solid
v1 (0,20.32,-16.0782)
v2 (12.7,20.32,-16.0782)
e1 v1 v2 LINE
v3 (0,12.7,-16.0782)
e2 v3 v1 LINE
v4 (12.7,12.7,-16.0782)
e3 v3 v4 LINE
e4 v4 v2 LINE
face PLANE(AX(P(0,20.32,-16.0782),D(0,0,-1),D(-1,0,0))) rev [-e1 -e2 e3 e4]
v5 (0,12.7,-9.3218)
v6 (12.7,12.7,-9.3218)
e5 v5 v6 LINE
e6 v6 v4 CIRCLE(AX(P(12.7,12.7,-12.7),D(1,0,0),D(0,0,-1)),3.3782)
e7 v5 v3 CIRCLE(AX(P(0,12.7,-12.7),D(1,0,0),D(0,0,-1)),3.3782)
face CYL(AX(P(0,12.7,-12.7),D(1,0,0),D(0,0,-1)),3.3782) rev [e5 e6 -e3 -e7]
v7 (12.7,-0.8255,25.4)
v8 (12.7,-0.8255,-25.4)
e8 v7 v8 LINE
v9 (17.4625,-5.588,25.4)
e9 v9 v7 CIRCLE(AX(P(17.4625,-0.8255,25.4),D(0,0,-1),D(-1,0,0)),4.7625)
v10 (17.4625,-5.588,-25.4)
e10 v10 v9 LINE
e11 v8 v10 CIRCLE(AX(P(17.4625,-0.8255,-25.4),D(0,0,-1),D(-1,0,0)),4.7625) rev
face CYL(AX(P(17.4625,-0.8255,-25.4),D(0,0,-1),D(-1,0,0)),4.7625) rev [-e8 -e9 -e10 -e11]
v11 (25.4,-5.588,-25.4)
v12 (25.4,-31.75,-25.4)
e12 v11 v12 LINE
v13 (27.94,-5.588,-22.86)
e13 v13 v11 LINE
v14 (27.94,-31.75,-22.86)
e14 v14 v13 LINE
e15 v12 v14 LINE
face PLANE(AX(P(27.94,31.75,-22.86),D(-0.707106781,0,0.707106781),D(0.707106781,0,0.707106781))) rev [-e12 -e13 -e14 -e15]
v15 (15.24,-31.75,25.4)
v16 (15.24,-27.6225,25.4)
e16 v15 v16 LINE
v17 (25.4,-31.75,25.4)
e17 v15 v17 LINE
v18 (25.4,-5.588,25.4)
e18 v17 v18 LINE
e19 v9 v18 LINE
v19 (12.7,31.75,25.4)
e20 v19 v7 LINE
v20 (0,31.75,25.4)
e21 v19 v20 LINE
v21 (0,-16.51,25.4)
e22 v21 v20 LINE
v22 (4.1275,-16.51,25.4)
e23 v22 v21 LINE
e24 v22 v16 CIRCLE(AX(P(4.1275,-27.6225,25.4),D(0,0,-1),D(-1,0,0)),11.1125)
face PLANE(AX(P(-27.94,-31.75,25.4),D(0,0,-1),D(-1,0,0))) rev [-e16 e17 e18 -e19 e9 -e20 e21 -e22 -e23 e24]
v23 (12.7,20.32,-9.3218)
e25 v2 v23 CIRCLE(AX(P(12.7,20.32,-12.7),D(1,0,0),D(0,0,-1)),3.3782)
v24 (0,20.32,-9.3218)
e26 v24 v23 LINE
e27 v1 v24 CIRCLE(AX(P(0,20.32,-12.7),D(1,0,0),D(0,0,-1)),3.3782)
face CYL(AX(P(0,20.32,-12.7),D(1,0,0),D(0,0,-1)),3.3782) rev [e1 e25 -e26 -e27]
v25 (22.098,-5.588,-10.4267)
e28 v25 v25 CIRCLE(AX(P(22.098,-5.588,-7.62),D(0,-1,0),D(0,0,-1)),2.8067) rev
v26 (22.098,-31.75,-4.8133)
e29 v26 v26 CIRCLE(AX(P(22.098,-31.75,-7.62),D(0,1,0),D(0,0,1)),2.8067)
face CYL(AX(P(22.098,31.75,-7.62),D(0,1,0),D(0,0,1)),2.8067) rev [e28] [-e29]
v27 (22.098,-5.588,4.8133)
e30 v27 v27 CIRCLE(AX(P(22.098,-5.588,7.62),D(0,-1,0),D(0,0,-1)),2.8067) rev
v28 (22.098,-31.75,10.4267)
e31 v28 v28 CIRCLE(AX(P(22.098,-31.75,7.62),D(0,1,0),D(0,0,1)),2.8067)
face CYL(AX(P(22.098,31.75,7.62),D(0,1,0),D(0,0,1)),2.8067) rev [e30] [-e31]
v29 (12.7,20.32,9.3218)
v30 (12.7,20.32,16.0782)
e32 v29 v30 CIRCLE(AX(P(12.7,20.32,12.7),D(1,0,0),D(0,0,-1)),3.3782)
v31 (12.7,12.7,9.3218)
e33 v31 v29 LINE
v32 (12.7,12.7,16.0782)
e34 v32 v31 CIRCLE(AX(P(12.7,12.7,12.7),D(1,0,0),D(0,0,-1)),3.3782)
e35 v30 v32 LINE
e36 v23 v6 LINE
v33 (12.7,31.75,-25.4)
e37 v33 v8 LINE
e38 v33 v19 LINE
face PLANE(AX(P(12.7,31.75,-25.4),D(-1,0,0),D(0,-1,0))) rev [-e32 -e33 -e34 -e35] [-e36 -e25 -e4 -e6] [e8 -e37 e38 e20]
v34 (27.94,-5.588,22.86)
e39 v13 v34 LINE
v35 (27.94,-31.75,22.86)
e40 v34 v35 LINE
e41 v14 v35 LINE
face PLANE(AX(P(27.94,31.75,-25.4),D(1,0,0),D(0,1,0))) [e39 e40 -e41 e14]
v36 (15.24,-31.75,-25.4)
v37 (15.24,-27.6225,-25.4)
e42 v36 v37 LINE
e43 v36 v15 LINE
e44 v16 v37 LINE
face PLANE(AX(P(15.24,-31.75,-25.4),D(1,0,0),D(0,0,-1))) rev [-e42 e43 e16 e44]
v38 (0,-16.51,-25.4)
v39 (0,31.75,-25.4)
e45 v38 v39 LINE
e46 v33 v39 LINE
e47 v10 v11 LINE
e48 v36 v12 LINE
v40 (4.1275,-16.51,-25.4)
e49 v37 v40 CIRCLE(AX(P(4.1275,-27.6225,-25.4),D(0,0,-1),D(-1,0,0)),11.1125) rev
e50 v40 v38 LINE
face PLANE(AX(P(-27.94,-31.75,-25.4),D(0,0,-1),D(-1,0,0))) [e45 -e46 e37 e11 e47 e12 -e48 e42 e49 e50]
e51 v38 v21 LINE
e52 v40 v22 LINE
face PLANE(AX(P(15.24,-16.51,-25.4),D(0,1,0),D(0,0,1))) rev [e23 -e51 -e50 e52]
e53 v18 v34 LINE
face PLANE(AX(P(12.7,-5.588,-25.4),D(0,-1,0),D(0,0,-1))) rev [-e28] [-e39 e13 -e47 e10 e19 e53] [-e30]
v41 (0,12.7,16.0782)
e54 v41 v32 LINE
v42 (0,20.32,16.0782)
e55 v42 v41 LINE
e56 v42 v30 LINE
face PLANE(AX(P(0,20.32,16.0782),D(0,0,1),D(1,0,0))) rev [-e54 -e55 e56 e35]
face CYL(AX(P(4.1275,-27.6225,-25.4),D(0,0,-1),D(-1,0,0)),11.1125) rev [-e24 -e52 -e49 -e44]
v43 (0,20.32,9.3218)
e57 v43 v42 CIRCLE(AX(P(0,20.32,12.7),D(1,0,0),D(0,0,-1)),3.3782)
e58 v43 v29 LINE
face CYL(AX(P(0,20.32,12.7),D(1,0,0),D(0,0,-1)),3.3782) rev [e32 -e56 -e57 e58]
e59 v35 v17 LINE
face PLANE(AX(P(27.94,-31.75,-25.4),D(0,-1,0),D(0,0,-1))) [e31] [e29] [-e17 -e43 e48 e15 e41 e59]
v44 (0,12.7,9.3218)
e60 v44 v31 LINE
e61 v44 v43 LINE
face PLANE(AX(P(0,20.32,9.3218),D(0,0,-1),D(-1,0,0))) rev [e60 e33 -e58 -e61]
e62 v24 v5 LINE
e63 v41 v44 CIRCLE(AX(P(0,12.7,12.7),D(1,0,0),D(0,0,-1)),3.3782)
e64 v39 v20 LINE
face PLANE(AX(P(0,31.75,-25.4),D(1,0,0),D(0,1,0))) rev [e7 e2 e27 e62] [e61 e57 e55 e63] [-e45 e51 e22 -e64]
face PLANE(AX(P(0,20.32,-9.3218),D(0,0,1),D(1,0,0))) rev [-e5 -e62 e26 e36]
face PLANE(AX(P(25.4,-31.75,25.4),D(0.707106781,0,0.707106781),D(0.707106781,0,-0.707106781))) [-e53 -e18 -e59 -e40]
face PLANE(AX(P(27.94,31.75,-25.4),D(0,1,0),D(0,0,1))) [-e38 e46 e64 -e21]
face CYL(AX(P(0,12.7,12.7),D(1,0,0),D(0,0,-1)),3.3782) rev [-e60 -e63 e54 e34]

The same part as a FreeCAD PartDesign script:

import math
import FreeCAD as App
import Part
import Sketcher
from FreeCAD import Vector
Q = App.Units.Quantity


def edges_at(feature, points):
    """Names of the edges that pass closest to the given points."""
    edges = feature.Shape.Edges
    near = lambda p: min(range(len(edges)), key=lambda i: edges[i].distToShape(Part.Vertex(*p))[0])
    return sorted({f"Edge{near(p) + 1}" for p in points})

doc = App.newDocument("Part")
body = doc.addObject("PartDesign::Body", "Body")

# Sketch on XY plane
sketch1 = body.newObject("Sketcher::SketchObject", "Sketch")
sketch1.AttachmentSupport = (doc.getObject("XY_Plane"), [""])
sketch1.MapMode = "FlatFace"
sketch1.addGeometry(Part.LineSegment(Vector(-28, 32, 0), Vector(-28, -32, 0)), False)
sketch1.addGeometry(Part.LineSegment(Vector(-28, -32, 0), Vector(28, -32, 0)), False)
sketch1.addGeometry(Part.LineSegment(Vector(28, -32, 0), Vector(28, 32, 0)), False)
sketch1.addGeometry(Part.LineSegment(Vector(28, 32, 0), Vector(-28, 32, 0)), False)
sketch1.addConstraint(Sketcher.Constraint("Coincident", 0, 2, 1, 1))
sketch1.addConstraint(Sketcher.Constraint("Coincident", 1, 2, 2, 1))
sketch1.addConstraint(Sketcher.Constraint("Coincident", 2, 2, 3, 1))
sketch1.addConstraint(Sketcher.Constraint("Coincident", 3, 2, 0, 1))
sketch1.addConstraint(Sketcher.Constraint("Vertical", 0))
sketch1.addConstraint(Sketcher.Constraint("Horizontal", 1))
sketch1.addConstraint(Sketcher.Constraint("Vertical", 2))
sketch1.addConstraint(Sketcher.Constraint("Horizontal", 3))
sketch1.addConstraint(Sketcher.Constraint("Symmetric", 0, 2, 2, 2, -1, 1))
sketch1.addConstraint(Sketcher.Constraint("DistanceX", 1, 1, 1, 2, Q("2.2 in")))
sketch1.addConstraint(Sketcher.Constraint("DistanceY", 0, 2, 0, 1, Q("2.5 in")))
pad1 = body.newObject("PartDesign::Pad", "Pad")
pad1.Profile = sketch1
pad1.Type = "TwoLengths"
pad1.Length = Q("1 in")
pad1.Length2 = Q("1 in")

# Sketch on XY plane
sketch2 = body.newObject("Sketcher::SketchObject", "Sketch001")
sketch2.AttachmentSupport = (doc.getObject("XY_Plane"), [""])
sketch2.MapMode = "FlatFace"
sketch2.AttachmentOffset = App.Placement(Vector(0, 0, 1 * 25.4), App.Rotation())
sketch2.addGeometry(Part.LineSegment(Vector(-28, -32, 0), Vector(15, -32, 0)), False)
sketch2.addGeometry(Part.LineSegment(Vector(15, -32, 0), Vector(15, -17, 0)), False)
sketch2.addGeometry(Part.LineSegment(Vector(15, -17, 0), Vector(0, -17, 0)), False)
sketch2.addGeometry(Part.LineSegment(Vector(0, -17, 0), Vector(0, 32, 0)), False)
sketch2.addGeometry(Part.LineSegment(Vector(0, 32, 0), Vector(-28, 32, 0)), False)
sketch2.addGeometry(Part.LineSegment(Vector(-28, 32, 0), Vector(-28, -32, 0)), False)
sketch2.addConstraint(Sketcher.Constraint("Coincident", 0, 2, 1, 1))
sketch2.addConstraint(Sketcher.Constraint("Coincident", 1, 2, 2, 1))
sketch2.addConstraint(Sketcher.Constraint("Coincident", 2, 2, 3, 1))
sketch2.addConstraint(Sketcher.Constraint("Coincident", 3, 2, 4, 1))
sketch2.addConstraint(Sketcher.Constraint("Coincident", 4, 2, 5, 1))
sketch2.addConstraint(Sketcher.Constraint("Coincident", 5, 2, 0, 1))
sketch2.addConstraint(Sketcher.Constraint("Horizontal", 0))
sketch2.addConstraint(Sketcher.Constraint("Vertical", 1))
sketch2.addConstraint(Sketcher.Constraint("Horizontal", 2))
sketch2.addConstraint(Sketcher.Constraint("Vertical", 3))
sketch2.addConstraint(Sketcher.Constraint("Horizontal", 4))
sketch2.addConstraint(Sketcher.Constraint("Vertical", 5))
sketch2.addConstraint(Sketcher.Constraint("PointOnObject", 2, 2, -2))
sketch2.addConstraint(Sketcher.Constraint("Equal", 2, 1))
sketch2.addConstraint(Sketcher.Constraint("DistanceX", 0, 1, 0, 2, Q("1.7 in")))
sketch2.addConstraint(Sketcher.Constraint("DistanceX", 2, 2, 2, 1, Q("0.6 in")))
sketch2.addConstraint(Sketcher.Constraint("DistanceY", 3, 1, 3, 2, Q("1.9 in")))
sketch2.addConstraint(Sketcher.Constraint("DistanceY", 0, 2, -1, 1, Q("1.25 in")))
pocket1 = body.newObject("PartDesign::Pocket", "Pocket")
pocket1.Profile = sketch2
pocket1.Type = "ThroughAll"
doc.recompute()

fillet = body.newObject("PartDesign::Fillet", "Fillet")
fillet.Base = (pocket1, edges_at(pocket1, [(15.24, -16.51, 0)]))
fillet.Radius = Q("0.4375 in")

# Sketch on XZ plane
sketch3 = body.newObject("Sketcher::SketchObject", "Sketch002")
sketch3.AttachmentSupport = (doc.getObject("XZ_Plane"), [""])
sketch3.MapMode = "FlatFace"
sketch3.AttachmentOffset = App.Placement(Vector(0, 0, -1.25 * 25.4), App.Rotation())
sketch3.addGeometry(Part.Circle(Vector(22.1, -7.6, 0), Vector(0, 0, 1), 2.8), False)
sketch3.addConstraint(Sketcher.Constraint("Diameter", 0, Q("0.221 in")))
sketch3.addConstraint(Sketcher.Constraint("DistanceY", 0, 3, -1, 1, Q("0.3 in")))
sketch3.addConstraint(Sketcher.Constraint("DistanceX", -1, 1, 0, 3, Q("0.87 in")))
doc.recompute()
hole = body.newObject("PartDesign::Hole", "Hole")
hole.Profile = sketch3
hole.ThreadType = "None"
hole.Diameter = Q("0.221 in")
hole.DepthType = "ThroughAll"
hole.Reversed = True
doc.recompute()

linearpattern = body.newObject("PartDesign::LinearPattern", "LinearPattern")
linearpattern.Originals = [hole]
linearpattern.Direction = (doc.getObject("Z_Axis"), [""])
linearpattern.Mode = "offset"
linearpattern.Offset = Q("0.6 in")
linearpattern.Occurrences = 2
body.Tip = linearpattern

# Sketch on XY plane
sketch4 = body.newObject("Sketcher::SketchObject", "Sketch003")
sketch4.AttachmentSupport = (doc.getObject("XY_Plane"), [""])
sketch4.MapMode = "FlatFace"
sketch4.AttachmentOffset = App.Placement(Vector(0, 0, 1 * 25.4), App.Rotation())
sketch4.addGeometry(Part.LineSegment(Vector(13, 32, 0), Vector(13, -6, 0)), False)
sketch4.addGeometry(Part.LineSegment(Vector(13, -6, 0), Vector(28, -6, 0)), False)
sketch4.addGeometry(Part.LineSegment(Vector(28, -6, 0), Vector(28, 32, 0)), False)
sketch4.addGeometry(Part.LineSegment(Vector(28, 32, 0), Vector(13, 32, 0)), False)
sketch4.addConstraint(Sketcher.Constraint("Coincident", 0, 2, 1, 1))
sketch4.addConstraint(Sketcher.Constraint("Coincident", 1, 2, 2, 1))
sketch4.addConstraint(Sketcher.Constraint("Coincident", 2, 2, 3, 1))
sketch4.addConstraint(Sketcher.Constraint("Coincident", 3, 2, 0, 1))
sketch4.addConstraint(Sketcher.Constraint("Vertical", 0))
sketch4.addConstraint(Sketcher.Constraint("Horizontal", 1))
sketch4.addConstraint(Sketcher.Constraint("Vertical", 2))
sketch4.addConstraint(Sketcher.Constraint("Horizontal", 3))
sketch4.addConstraint(Sketcher.Constraint("DistanceX", 1, 1, 1, 2, Q("0.6 in")))
sketch4.addConstraint(Sketcher.Constraint("DistanceY", 0, 2, 0, 1, Q("1.47 in")))
sketch4.addConstraint(Sketcher.Constraint("DistanceX", -1, 1, 0, 2, Q("0.5 in")))
sketch4.addConstraint(Sketcher.Constraint("DistanceY", 0, 2, -1, 1, Q("0.22 in")))
pocket2 = body.newObject("PartDesign::Pocket", "Pocket001")
pocket2.Profile = sketch4
pocket2.Type = "ThroughAll"
doc.recompute()

fillet2 = body.newObject("PartDesign::Fillet", "Fillet001")
fillet2.Base = (pocket2, edges_at(pocket2, [(12.7, -5.588, 0)]))
fillet2.Radius = Q("0.1875 in")

# Sketch on YZ plane
sketch5 = body.newObject("Sketcher::SketchObject", "Sketch004")
sketch5.AttachmentSupport = (doc.getObject("YZ_Plane"), [""])
sketch5.MapMode = "FlatFace"
sketch5.AttachmentOffset = App.Placement(Vector(0, 0, 0.5 * 25.4), App.Rotation())
sketch5.addGeometry(Part.LineSegment(Vector(12.7, 9.3, 0), Vector(20.3, 9.3, 0)), False)
sketch5.addGeometry(Part.ArcOfCircle(Part.Circle(Vector(20.3, 12.7, 0), Vector(0, 0, 1), 3.4), math.radians(-90), math.radians(90)), False)
sketch5.addGeometry(Part.LineSegment(Vector(20.3, 16.1, 0), Vector(12.7, 16.1, 0)), False)
sketch5.addGeometry(Part.ArcOfCircle(Part.Circle(Vector(12.7, 12.7, 0), Vector(0, 0, 1), 3.4), math.radians(90), math.radians(270)), False)
sketch5.addConstraint(Sketcher.Constraint("Tangent", 0, 2, 1, 1))
sketch5.addConstraint(Sketcher.Constraint("Tangent", 1, 2, 2, 1))
sketch5.addConstraint(Sketcher.Constraint("Tangent", 2, 2, 3, 1))
sketch5.addConstraint(Sketcher.Constraint("Tangent", 3, 2, 0, 1))
sketch5.addConstraint(Sketcher.Constraint("Horizontal", 0))
sketch5.addConstraint(Sketcher.Constraint("Horizontal", 2))
sketch5.addConstraint(Sketcher.Constraint("DistanceX", 0, 1, 0, 2, Q("0.3 in")))
sketch5.addConstraint(Sketcher.Constraint("Radius", 1, Q("0.133 in")))
sketch5.addConstraint(Sketcher.Constraint("DistanceX", -1, 1, 1, 3, Q("0.8 in")))
sketch5.addConstraint(Sketcher.Constraint("DistanceY", -1, 1, 1, 3, Q("0.5 in")))
pocket3 = body.newObject("PartDesign::Pocket", "Pocket002")
pocket3.Profile = sketch5
pocket3.Type = "ThroughAll"
doc.recompute()

linearpattern2 = body.newObject("PartDesign::LinearPattern", "LinearPattern001")
linearpattern2.Originals = [pocket3]
linearpattern2.Direction = (doc.getObject("Z_Axis"), [""])
linearpattern2.Mode = "offset"
linearpattern2.Offset = Q("1 in")
linearpattern2.Occurrences = 2
linearpattern2.Reversed = True
body.Tip = linearpattern2
doc.recompute()

chamfer = body.newObject("PartDesign::Chamfer", "Chamfer")
chamfer.Base = (linearpattern2, edges_at(linearpattern2, [(27.94, -18.669, -25.4), (27.94, -18.669, 25.4)]))
chamfer.Size = Q("0.1 in")

doc.recompute()
